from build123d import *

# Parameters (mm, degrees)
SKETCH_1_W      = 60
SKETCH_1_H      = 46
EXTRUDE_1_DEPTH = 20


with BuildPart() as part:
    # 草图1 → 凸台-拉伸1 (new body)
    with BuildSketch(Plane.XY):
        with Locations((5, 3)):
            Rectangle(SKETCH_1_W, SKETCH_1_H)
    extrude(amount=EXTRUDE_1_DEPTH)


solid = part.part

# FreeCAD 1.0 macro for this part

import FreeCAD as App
import Part
import Sketcher
Q = App.Units.Quantity

doc = App.newDocument("Part")
params = doc.addObject("Spreadsheet::Sheet", "Params")
for row, (alias, value) in enumerate([
    ("sketch1_width", "60 mm"),
    ("sketch1_height", "46 mm"),
    ("pad1_length", "20 mm"),
], start=1):
    params.set(f"A{row}", alias)
    params.set(f"B{row}", "=" + value)
    params.setAlias(f"B{row}", alias)

body = doc.addObject("PartDesign::Body", "Body")

# Sketch on XY plane
sketch1 = body.newObject("Sketcher::SketchObject", "Sketch")
sketch1.AttachmentSupport = (doc.getObject("XY_Plane"), [""])
sketch1.MapMode = "FlatFace"
sketch1.addGeometry(Part.LineSegment(App.Vector(-25, 26, 0), App.Vector(-25, -20, 0)), False)
sketch1.addGeometry(Part.LineSegment(App.Vector(-25, -20, 0), App.Vector(35, -20, 0)), False)
sketch1.addGeometry(Part.LineSegment(App.Vector(35, -20, 0), App.Vector(35, 26, 0)), False)
sketch1.addGeometry(Part.LineSegment(App.Vector(35, 26, 0), App.Vector(-25, 26, 0)), False)
sketch1.addConstraint(Sketcher.Constraint("Coincident", 0, 2, 1, 1))
sketch1.addConstraint(Sketcher.Constraint("Coincident", 1, 2, 2, 1))
sketch1.addConstraint(Sketcher.Constraint("Coincident", 2, 2, 3, 1))
sketch1.addConstraint(Sketcher.Constraint("Coincident", 3, 2, 0, 1))
sketch1.addConstraint(Sketcher.Constraint("Vertical", 0))
sketch1.addConstraint(Sketcher.Constraint("Horizontal", 1))
sketch1.addConstraint(Sketcher.Constraint("Vertical", 2))
sketch1.addConstraint(Sketcher.Constraint("Horizontal", 3))
sketch1.addConstraint(Sketcher.Constraint("DistanceX", 1, 1, 1, 2, Q("60 mm")))
sketch1.addConstraint(Sketcher.Constraint("DistanceY", 0, 2, 0, 1, Q("46 mm")))
sketch1.addConstraint(Sketcher.Constraint("DistanceX", 0, 2, -1, 1, Q("25 mm")))
sketch1.addConstraint(Sketcher.Constraint("DistanceY", 0, 2, -1, 1, Q("20 mm")))
sketch1.setExpression("Constraints[8]", "Params.sketch1_width")
sketch1.setExpression("Constraints[9]", "Params.sketch1_height")
pad1 = body.newObject("PartDesign::Pad", "Pad")
pad1.Profile = sketch1
pad1.setExpression("Length", "Params.pad1_length")

doc.recompute()
